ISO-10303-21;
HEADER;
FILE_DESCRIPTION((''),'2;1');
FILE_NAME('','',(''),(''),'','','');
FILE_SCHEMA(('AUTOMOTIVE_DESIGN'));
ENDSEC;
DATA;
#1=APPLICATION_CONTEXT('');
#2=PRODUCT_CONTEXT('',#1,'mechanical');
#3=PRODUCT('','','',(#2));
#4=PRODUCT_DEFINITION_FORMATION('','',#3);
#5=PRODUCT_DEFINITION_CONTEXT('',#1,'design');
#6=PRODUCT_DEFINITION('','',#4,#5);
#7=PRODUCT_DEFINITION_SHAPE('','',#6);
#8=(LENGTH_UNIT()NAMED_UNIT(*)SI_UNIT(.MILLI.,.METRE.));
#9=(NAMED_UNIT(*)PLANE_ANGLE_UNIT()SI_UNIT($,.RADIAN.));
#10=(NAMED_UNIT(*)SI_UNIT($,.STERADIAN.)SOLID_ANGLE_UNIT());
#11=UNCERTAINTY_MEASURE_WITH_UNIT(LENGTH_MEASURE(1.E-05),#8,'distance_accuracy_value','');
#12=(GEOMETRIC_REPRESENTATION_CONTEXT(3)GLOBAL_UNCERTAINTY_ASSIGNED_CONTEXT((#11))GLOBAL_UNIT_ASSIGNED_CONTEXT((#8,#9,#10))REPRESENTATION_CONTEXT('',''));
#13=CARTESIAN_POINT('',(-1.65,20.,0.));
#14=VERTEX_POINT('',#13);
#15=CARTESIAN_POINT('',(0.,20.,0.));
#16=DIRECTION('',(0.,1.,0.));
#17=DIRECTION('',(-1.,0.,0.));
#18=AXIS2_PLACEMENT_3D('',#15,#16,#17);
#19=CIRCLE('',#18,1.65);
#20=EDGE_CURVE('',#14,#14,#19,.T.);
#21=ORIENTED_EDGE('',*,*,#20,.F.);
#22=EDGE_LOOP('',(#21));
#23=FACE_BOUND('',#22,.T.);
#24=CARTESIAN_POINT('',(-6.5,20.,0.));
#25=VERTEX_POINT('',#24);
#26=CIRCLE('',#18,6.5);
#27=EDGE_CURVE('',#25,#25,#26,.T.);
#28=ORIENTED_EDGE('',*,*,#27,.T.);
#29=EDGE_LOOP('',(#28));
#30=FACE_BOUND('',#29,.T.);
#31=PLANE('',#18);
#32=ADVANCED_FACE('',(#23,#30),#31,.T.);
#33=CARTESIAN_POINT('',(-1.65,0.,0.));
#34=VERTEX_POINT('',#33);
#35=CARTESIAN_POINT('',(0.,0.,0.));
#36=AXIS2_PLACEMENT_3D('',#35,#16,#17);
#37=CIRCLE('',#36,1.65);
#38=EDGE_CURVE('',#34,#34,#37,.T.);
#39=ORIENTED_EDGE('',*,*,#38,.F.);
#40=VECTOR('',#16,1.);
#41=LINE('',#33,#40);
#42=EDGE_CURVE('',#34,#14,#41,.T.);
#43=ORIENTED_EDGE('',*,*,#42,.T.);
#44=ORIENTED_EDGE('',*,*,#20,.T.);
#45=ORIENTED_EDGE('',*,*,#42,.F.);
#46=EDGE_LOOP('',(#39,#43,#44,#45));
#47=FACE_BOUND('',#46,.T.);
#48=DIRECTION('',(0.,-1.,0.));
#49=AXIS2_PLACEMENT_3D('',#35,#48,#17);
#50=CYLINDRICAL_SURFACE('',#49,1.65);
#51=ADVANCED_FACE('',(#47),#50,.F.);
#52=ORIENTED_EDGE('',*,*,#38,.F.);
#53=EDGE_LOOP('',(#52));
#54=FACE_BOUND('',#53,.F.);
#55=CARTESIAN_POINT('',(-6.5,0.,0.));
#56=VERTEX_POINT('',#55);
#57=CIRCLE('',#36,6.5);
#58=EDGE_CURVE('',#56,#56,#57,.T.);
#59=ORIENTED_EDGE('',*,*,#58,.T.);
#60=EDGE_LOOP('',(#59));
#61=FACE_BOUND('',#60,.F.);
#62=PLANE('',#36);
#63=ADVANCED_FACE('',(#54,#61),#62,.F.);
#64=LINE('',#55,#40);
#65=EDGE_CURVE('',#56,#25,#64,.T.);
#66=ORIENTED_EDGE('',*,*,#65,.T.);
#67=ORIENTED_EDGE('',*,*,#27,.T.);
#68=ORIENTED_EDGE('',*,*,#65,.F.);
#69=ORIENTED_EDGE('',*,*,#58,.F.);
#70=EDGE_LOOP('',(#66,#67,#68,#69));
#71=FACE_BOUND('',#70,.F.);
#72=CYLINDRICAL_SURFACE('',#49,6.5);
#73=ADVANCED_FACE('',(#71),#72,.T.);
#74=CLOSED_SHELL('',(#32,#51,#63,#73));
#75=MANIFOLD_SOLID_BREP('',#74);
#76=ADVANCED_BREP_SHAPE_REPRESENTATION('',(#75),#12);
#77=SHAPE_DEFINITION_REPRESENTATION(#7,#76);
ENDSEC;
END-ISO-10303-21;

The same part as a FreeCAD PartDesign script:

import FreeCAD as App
import Part
import Sketcher
from FreeCAD import Vector

doc = App.newDocument("Part")
body = doc.addObject("PartDesign::Body", "Body")

# Sketch on XZ plane
sketch1 = body.newObject("Sketcher::SketchObject", "Sketch")
sketch1.AttachmentSupport = (doc.getObject("XZ_Plane"), [""])
sketch1.MapMode = "FlatFace"
sketch1.addGeometry([
    Part.Circle(Vector(0, 0, 0), Vector(0, 0, 1), 6.5),
    Part.Circle(Vector(0, 0, 0), Vector(0, 0, 1), 1.65),
], False)
sketch1.addConstraint([
    Sketcher.Constraint("Coincident", 0, 3, -1, 1),
    Sketcher.Constraint("Coincident", 1, 3, -1, 1),
    Sketcher.Constraint("Diameter", 0, 13.0),
    Sketcher.Constraint("Diameter", 1, 3.3),
])
pad1 = body.newObject("PartDesign::Pad", "Pad")
pad1.Profile = sketch1
pad1.Length = 20
pad1.Reversed = True

doc.recompute()
